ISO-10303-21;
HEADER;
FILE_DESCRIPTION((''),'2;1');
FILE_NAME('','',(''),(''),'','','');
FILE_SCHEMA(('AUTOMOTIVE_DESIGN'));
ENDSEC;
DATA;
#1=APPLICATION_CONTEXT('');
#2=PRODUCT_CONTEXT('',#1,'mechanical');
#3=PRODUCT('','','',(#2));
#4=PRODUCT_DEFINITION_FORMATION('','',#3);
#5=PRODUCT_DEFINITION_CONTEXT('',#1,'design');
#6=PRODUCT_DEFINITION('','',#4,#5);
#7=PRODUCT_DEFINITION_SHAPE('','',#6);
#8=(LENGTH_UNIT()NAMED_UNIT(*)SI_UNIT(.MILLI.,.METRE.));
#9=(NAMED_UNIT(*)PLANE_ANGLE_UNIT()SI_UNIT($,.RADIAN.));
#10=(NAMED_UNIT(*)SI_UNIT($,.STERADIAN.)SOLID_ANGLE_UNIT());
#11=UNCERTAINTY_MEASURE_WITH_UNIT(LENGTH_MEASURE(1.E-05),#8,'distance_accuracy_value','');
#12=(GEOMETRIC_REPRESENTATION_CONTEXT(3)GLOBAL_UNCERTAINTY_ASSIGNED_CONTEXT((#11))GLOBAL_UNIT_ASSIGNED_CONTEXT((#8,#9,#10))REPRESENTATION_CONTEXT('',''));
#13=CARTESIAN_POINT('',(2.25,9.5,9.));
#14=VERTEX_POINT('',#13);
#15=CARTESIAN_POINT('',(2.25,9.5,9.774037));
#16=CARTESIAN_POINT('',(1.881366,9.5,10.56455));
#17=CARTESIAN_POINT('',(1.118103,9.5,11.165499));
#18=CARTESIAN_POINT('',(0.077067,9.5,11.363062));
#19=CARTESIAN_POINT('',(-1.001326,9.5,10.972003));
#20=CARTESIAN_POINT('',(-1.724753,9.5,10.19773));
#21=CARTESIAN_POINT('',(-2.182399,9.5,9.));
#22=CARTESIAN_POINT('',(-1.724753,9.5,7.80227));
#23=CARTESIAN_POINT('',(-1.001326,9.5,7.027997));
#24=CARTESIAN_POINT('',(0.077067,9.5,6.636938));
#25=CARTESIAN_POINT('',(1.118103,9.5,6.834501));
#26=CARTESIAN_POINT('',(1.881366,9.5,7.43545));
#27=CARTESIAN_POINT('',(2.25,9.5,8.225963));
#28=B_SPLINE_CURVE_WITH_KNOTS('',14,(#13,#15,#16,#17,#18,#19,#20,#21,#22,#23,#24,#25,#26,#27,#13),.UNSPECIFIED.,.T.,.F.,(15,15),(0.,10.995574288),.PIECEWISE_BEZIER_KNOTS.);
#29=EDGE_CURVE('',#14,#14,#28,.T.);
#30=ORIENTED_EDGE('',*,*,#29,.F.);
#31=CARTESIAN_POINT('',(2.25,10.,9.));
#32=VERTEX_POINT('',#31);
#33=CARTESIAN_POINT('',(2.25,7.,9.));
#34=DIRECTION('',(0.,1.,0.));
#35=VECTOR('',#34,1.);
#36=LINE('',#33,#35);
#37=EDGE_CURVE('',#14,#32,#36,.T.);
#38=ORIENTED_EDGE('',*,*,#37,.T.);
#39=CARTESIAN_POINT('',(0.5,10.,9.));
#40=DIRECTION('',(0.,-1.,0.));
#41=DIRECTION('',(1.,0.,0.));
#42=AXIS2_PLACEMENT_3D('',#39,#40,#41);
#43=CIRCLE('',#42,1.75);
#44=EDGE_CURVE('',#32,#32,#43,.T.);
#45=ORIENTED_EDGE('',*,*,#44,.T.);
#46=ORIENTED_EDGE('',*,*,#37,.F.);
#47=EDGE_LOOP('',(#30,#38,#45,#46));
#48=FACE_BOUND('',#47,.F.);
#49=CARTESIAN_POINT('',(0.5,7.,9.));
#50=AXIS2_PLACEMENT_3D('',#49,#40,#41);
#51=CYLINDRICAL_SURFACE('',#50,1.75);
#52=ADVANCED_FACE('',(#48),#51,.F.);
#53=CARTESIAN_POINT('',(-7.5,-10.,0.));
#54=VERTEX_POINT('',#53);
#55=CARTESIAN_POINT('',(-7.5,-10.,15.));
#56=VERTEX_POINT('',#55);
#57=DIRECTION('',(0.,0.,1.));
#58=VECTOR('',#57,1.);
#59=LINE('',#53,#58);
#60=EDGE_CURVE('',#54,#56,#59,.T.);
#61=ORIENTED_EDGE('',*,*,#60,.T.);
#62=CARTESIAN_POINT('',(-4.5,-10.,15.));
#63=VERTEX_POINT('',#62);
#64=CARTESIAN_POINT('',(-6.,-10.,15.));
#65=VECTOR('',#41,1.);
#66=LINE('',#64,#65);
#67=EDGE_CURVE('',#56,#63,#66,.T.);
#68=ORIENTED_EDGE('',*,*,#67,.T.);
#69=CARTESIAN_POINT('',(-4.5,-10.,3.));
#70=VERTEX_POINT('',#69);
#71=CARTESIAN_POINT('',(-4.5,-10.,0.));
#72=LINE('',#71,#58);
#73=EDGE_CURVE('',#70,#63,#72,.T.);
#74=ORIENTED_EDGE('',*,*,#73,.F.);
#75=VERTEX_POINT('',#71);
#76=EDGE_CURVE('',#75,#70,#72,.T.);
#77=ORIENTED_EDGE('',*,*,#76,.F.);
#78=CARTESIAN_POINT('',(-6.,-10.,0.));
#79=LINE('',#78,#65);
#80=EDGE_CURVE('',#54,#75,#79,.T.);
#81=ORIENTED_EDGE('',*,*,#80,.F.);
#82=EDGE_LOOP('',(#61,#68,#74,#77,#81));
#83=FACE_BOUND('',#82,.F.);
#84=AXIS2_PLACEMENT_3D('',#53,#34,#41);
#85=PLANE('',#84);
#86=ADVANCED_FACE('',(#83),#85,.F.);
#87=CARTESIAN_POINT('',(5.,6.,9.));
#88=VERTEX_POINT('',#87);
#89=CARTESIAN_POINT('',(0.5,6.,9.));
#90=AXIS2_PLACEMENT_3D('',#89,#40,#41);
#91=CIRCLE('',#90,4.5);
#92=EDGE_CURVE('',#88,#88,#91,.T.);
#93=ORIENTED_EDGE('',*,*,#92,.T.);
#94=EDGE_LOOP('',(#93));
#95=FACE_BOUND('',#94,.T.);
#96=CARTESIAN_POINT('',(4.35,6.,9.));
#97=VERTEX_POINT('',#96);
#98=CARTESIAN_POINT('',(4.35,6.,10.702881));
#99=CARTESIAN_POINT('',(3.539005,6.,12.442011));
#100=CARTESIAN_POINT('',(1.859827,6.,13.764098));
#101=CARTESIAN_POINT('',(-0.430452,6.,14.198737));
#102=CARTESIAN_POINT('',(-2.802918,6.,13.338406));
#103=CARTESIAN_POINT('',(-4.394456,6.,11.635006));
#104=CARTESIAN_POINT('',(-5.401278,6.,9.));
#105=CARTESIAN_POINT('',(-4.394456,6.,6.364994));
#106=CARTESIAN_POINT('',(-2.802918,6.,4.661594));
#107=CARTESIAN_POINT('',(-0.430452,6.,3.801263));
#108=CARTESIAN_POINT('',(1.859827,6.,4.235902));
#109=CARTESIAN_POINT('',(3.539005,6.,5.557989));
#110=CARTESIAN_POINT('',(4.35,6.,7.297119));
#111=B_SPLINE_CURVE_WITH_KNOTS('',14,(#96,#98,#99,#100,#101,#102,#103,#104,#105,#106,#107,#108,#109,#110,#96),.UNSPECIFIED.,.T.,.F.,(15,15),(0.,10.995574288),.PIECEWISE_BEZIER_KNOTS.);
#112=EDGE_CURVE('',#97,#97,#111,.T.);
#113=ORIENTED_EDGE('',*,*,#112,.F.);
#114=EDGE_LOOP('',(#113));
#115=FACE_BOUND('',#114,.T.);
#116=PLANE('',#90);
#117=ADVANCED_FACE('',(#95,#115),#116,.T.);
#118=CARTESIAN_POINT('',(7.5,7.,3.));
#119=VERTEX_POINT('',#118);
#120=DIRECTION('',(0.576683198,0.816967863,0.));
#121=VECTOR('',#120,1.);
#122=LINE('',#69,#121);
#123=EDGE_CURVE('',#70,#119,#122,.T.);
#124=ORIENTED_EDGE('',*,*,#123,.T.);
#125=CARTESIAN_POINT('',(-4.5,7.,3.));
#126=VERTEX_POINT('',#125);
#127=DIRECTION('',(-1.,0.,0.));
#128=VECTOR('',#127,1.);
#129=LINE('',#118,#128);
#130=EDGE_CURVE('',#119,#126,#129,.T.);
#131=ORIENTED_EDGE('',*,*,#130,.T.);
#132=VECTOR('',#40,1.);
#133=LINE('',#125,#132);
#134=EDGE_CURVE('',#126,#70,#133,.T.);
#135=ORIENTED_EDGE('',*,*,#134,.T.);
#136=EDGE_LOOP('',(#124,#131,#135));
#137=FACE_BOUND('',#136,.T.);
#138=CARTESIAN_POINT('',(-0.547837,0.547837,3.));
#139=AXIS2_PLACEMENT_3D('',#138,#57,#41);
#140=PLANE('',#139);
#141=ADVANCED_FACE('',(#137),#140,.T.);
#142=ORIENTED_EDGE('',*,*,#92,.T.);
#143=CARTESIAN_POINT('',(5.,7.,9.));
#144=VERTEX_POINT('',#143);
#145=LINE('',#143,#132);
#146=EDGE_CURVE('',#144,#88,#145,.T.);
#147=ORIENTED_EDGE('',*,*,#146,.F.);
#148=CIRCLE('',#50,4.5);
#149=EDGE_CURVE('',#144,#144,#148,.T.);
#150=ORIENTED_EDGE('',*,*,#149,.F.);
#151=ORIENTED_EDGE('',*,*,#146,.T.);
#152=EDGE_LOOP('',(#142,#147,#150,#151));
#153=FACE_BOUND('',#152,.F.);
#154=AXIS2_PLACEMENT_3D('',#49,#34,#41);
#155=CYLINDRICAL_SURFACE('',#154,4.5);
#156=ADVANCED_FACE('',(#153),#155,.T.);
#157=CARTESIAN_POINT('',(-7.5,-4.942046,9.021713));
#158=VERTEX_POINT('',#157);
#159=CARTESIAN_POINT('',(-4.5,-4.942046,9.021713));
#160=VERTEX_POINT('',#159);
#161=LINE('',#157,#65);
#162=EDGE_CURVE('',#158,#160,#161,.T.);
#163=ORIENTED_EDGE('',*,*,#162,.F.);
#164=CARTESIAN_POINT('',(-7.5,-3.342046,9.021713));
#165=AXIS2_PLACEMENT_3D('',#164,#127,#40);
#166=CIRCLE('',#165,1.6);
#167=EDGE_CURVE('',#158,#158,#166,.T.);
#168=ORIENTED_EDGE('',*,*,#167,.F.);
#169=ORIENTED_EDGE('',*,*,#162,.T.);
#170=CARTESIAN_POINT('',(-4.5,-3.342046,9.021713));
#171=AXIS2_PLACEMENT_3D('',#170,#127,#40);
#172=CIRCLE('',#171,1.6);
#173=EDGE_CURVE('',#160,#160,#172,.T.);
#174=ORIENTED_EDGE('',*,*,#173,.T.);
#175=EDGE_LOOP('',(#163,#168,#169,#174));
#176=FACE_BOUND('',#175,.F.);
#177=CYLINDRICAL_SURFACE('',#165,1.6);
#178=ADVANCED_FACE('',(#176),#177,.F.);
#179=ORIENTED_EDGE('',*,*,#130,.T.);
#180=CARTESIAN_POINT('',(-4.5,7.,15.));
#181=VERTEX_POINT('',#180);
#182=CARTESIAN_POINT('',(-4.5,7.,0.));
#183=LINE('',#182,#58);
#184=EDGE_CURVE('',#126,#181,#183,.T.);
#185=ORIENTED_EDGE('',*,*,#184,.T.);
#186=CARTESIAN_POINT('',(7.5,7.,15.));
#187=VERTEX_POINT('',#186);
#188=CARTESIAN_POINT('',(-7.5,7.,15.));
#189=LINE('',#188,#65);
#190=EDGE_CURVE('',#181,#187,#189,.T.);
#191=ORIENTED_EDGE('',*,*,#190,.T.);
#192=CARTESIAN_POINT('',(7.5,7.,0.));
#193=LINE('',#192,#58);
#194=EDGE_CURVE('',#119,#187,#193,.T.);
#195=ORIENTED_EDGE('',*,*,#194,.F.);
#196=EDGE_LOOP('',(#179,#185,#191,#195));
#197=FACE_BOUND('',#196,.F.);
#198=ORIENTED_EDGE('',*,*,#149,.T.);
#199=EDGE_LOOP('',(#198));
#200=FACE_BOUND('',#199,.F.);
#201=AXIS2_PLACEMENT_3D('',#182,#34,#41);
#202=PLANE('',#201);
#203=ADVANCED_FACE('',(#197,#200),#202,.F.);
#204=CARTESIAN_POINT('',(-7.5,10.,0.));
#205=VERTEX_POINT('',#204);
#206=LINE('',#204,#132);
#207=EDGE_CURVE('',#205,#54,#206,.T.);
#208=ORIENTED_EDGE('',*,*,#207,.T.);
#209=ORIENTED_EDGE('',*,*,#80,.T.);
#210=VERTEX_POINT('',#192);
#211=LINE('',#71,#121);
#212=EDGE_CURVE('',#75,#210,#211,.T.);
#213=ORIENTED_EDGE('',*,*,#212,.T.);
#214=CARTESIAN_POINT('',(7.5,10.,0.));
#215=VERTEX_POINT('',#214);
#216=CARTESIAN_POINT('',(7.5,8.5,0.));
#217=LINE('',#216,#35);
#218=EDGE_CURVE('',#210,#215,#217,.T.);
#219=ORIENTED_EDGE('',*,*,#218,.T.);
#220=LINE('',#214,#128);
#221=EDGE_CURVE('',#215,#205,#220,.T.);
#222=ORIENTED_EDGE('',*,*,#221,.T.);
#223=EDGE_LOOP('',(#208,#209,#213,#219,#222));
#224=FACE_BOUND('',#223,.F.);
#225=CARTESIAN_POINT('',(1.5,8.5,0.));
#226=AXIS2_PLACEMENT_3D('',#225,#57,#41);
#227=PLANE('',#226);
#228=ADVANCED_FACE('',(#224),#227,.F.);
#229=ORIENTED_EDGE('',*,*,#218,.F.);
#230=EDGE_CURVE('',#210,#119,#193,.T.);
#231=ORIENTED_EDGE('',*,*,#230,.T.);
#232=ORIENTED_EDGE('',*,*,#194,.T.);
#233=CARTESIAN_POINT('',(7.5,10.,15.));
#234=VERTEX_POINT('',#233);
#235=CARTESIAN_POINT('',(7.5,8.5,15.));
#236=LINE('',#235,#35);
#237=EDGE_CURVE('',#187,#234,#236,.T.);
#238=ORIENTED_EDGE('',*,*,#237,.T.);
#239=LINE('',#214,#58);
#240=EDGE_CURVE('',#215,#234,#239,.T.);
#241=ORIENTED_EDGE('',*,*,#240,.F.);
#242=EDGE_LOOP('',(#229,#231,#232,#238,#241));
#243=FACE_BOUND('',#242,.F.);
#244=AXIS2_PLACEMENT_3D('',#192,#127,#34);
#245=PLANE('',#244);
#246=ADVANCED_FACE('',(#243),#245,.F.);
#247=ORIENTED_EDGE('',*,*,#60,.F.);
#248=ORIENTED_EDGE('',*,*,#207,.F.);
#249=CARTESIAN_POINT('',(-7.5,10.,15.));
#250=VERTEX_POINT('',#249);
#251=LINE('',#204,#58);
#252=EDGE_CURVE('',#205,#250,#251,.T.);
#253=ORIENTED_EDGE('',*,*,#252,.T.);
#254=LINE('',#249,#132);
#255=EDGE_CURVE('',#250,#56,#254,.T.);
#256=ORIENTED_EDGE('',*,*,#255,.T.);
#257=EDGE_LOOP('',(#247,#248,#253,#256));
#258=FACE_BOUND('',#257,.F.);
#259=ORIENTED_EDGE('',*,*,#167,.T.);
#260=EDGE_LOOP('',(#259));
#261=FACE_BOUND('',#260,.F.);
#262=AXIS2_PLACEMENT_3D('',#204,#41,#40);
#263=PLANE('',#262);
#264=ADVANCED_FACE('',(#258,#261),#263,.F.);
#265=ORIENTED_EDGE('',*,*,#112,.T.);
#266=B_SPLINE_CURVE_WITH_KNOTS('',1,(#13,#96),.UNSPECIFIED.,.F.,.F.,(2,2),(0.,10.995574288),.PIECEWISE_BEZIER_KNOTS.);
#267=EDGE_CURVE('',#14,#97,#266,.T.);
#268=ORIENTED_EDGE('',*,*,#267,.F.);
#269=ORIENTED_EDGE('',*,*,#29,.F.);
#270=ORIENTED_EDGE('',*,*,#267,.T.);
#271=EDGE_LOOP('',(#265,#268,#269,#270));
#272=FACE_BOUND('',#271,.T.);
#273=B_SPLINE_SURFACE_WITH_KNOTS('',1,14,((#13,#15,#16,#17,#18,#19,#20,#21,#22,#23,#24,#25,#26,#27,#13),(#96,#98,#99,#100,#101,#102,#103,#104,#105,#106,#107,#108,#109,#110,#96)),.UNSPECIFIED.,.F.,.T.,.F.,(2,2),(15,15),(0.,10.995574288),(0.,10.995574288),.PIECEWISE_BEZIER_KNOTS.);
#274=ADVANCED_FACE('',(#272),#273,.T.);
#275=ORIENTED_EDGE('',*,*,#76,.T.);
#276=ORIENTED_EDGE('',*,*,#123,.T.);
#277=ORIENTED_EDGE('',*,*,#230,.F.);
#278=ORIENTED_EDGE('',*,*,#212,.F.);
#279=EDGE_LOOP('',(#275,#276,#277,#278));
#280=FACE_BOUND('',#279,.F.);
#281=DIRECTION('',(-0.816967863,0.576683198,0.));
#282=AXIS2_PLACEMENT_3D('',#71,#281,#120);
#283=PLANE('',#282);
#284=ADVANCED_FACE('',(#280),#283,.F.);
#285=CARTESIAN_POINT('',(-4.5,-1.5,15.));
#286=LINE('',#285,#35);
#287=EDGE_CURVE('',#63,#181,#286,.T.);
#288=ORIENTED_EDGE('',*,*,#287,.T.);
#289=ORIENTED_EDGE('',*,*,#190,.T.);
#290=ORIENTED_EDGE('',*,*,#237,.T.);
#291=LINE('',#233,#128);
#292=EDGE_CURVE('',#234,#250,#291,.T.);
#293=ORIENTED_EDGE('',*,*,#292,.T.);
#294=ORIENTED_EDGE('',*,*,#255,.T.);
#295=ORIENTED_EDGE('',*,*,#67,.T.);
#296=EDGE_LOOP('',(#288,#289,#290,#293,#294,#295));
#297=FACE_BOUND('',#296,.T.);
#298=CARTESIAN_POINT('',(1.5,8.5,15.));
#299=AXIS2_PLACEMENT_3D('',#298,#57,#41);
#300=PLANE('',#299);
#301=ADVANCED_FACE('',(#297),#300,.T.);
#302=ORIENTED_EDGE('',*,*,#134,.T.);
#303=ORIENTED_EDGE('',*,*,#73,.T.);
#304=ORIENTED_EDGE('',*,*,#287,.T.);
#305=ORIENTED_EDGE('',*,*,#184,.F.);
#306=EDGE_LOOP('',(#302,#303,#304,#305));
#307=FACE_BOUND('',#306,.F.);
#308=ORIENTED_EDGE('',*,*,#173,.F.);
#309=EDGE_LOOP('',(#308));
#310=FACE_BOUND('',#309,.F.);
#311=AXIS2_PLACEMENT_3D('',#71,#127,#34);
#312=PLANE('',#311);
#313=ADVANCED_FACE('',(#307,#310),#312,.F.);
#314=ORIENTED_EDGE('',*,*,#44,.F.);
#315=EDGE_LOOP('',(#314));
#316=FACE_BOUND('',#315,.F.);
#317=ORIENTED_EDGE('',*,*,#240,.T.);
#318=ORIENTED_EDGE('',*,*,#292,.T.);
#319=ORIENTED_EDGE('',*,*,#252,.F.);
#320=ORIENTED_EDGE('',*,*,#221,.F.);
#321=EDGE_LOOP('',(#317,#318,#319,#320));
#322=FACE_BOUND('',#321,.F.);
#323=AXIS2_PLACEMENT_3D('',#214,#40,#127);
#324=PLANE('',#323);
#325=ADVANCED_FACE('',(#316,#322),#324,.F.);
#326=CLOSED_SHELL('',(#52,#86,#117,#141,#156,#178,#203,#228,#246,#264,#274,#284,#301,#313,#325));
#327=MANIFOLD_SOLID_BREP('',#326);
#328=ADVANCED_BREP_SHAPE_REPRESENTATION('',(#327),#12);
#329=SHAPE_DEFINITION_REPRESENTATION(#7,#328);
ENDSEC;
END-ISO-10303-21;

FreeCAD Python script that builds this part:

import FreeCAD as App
import Part
import Sketcher

V = App.Vector


def edges_at(feature, points):
    """Names of the edges that pass closest to the given points."""
    edges = feature.Shape.Edges
    near = lambda p: min(range(len(edges)), key=lambda i: edges[i].distToShape(Part.Vertex(*p))[0])
    return sorted({f"Edge{near(p) + 1}" for p in points})


def add_polygon(sketch, points):
    """Adds a closed chain of lines whose ends are joined by coincident constraints."""
    first, n = sketch.GeometryCount, len(points)
    for a, b in zip(points, points[1:] + points[:1]):
        sketch.addGeometry(Part.LineSegment(App.Vector(*a, 0), App.Vector(*b, 0)), False)
    for i in range(n):
        sketch.addConstraint(Sketcher.Constraint("Coincident", first + i, 2, first + (i + 1) % n, 1))

doc = App.newDocument("Part")
body = doc.addObject("PartDesign::Body", "Body")

# Sketch on XY plane
sketch1 = body.newObject("Sketcher::SketchObject", "Sketch")
sketch1.AttachmentSupport = (doc.getObject("XY_Plane"), [""])
sketch1.MapMode = "FlatFace"
add_polygon(sketch1, [(-4.5, -10), (7.5, 7), (-4.5, 7)])  # lines 0-2
sketch1.addConstraint(Sketcher.Constraint("Horizontal", 1))
sketch1.addConstraint(Sketcher.Constraint("Vertical", 2))
sketch1.addConstraint(Sketcher.Constraint("DistanceX", 1, 2, 1, 1, 12.0))
sketch1.addConstraint(Sketcher.Constraint("DistanceY", 2, 2, 2, 1, 17.0))
sketch1.addConstraint(Sketcher.Constraint("DistanceY", -1, 1, 0, 2, 7.0))
sketch1.addConstraint(Sketcher.Constraint("DistanceX", -1, 1, 0, 2, 7.5))
pad1 = body.newObject("PartDesign::Pad", "Pad")
pad1.Profile = sketch1
pad1.Length = 3

# Sketch on XY plane
sketch2 = body.newObject("Sketcher::SketchObject", "Sketch001")
sketch2.AttachmentSupport = (doc.getObject("XY_Plane"), [""])
sketch2.MapMode = "FlatFace"
add_polygon(sketch2, [(7.5, 7), (7.5, 10), (-7.5, 10), (-7.5, -10), (-4.5, -10), (-4.5, 7)])  # lines 0-5
sketch2.addConstraint(Sketcher.Constraint("Vertical", 0))
sketch2.addConstraint(Sketcher.Constraint("Horizontal", 1))
sketch2.addConstraint(Sketcher.Constraint("Vertical", 2))
sketch2.addConstraint(Sketcher.Constraint("Horizontal", 3))
sketch2.addConstraint(Sketcher.Constraint("Vertical", 4))
sketch2.addConstraint(Sketcher.Constraint("Horizontal", 5))
sketch2.addConstraint(Sketcher.Constraint("Symmetric", 0, 2, 2, 2, -1, 1))
sketch2.addConstraint(Sketcher.Constraint("Equal", 3, 0))
sketch2.addConstraint(Sketcher.Constraint("DistanceX", 1, 2, 1, 1, 15.0))
sketch2.addConstraint(Sketcher.Constraint("DistanceX", 3, 1, 3, 2, 3.0))
sketch2.addConstraint(Sketcher.Constraint("DistanceY", 2, 2, 2, 1, 20.0))
pad2 = body.newObject("PartDesign::Pad", "Pad001")
pad2.Profile = sketch2
pad2.Length = 15

# Sketch on XZ plane
sketch3 = body.newObject("Sketcher::SketchObject", "Sketch002")
sketch3.AttachmentSupport = (doc.getObject("XZ_Plane"), [""])
sketch3.MapMode = "FlatFace"
sketch3.AttachmentOffset = App.Placement(V(0, 0, -7), App.Rotation())
sketch3.addGeometry(Part.Circle(V(0.5, 9, 0), V(0, 0, 1), 1.75), False)
sketch3.addConstraint(Sketcher.Constraint("Diameter", 0, 3.5))
sketch3.addConstraint(Sketcher.Constraint("DistanceY", -1, 1, 0, 3, 9.0))
sketch3.addConstraint(Sketcher.Constraint("DistanceX", -1, 1, 0, 3, 0.5))
pocket1 = body.newObject("PartDesign::Pocket", "Pocket")
pocket1.Profile = sketch3
pocket1.Length = 25

# Sketch on XZ plane
sketch4 = body.newObject("Sketcher::SketchObject", "Sketch003")
sketch4.AttachmentSupport = (doc.getObject("XZ_Plane"), [""])
sketch4.MapMode = "FlatFace"
sketch4.AttachmentOffset = App.Placement(V(0, 0, -7), App.Rotation())
sketch4.addGeometry(Part.Circle(V(0.5, 9, 0), V(0, 0, 1), 4.5), False)
sketch4.addGeometry(Part.Circle(V(0.5, 9, 0), V(0, 0, 1), 3.5), False)
sketch4.addConstraint(Sketcher.Constraint("Coincident", 1, 3, 0, 3))
sketch4.addConstraint(Sketcher.Constraint("Diameter", 0, 9.0))
sketch4.addConstraint(Sketcher.Constraint("Diameter", 1, 7.0))
sketch4.addConstraint(Sketcher.Constraint("DistanceY", -1, 1, 0, 3, 9.0))
sketch4.addConstraint(Sketcher.Constraint("DistanceX", -1, 1, 0, 3, 0.5))
pad3 = body.newObject("PartDesign::Pad", "Pad002")
pad3.Profile = sketch4
pad3.Length = 1

# Sketch on XZ plane
sketch5 = body.newObject("Sketcher::SketchObject", "Sketch004")
sketch5.AttachmentSupport = (doc.getObject("XZ_Plane"), [""])
sketch5.MapMode = "FlatFace"
sketch5.AttachmentOffset = App.Placement(V(0, 0, -7), App.Rotation())
sketch5.addGeometry(Part.Circle(V(0.5, 9, 0), V(0, 0, 1), 3.5), False)
sketch5.addGeometry(Part.Circle(V(0.5, 9, 0), V(0, 0, 1), 1.75), False)
sketch5.addConstraint(Sketcher.Constraint("Coincident", 1, 3, 0, 3))
sketch5.addConstraint(Sketcher.Constraint("Diameter", 0, 7.0))
sketch5.addConstraint(Sketcher.Constraint("Diameter", 1, 3.5))
sketch5.addConstraint(Sketcher.Constraint("DistanceY", -1, 1, 0, 3, 9.0))
sketch5.addConstraint(Sketcher.Constraint("DistanceX", -1, 1, 0, 3, 0.5))
pad4 = body.newObject("PartDesign::Pad", "Pad003")
pad4.Profile = sketch5
pad4.Length = 1
doc.recompute()

chamfer = body.newObject("PartDesign::Chamfer", "Chamfer")
chamfer.Base = (pad4, edges_at(pad4, [(-1.25, 6, 9)]))
chamfer.ChamferType = "Two distances"
chamfer.Size = 3.5
chamfer.Size2 = 2.1
chamfer.FlipDirection = True

# Sketch on YZ plane
sketch6 = body.newObject("Sketcher::SketchObject", "Sketch005")
sketch6.AttachmentSupport = (doc.getObject("YZ_Plane"), [""])
sketch6.MapMode = "FlatFace"
sketch6.AttachmentOffset = App.Placement(V(0, 0, -7.5), App.Rotation())
sketch6.addGeometry(Part.Circle(V(-3.342046, 9.021713, 0), V(0, 0, 1), 1.6), False)
sketch6.addConstraint(Sketcher.Constraint("Diameter", 0, 3.2))
sketch6.addConstraint(Sketcher.Constraint("DistanceX", 0, 3, -1, 1, 3.342046))
sketch6.addConstraint(Sketcher.Constraint("DistanceY", -1, 1, 0, 3, 9.021713))
pocket2 = body.newObject("PartDesign::Pocket", "Pocket001")
pocket2.Profile = sketch6
pocket2.Length = 25
pocket2.Reversed = True

doc.recompute()
